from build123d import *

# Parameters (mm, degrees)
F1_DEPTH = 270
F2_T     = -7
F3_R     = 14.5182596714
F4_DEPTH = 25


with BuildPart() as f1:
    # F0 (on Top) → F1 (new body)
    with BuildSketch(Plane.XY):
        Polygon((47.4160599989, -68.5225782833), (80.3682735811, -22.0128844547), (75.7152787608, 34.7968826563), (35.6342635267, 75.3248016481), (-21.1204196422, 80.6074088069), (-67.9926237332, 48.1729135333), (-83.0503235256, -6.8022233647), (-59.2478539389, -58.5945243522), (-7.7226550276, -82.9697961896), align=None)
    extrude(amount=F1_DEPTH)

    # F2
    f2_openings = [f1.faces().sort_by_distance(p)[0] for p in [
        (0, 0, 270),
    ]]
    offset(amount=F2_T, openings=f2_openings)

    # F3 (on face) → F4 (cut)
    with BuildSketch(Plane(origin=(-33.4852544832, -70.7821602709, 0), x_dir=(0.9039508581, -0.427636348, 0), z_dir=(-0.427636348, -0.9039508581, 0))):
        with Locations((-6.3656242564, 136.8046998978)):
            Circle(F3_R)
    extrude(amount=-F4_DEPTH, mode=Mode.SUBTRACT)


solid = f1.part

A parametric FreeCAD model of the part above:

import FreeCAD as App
import Part
import Sketcher

V = App.Vector
Q = App.Units.Quantity


def faces_at(feature, points):
    """Names of the faces that lie closest to the given points."""
    faces = feature.Shape.Faces
    near = lambda p: min(range(len(faces)), key=lambda i: faces[i].distToShape(Part.Vertex(*p))[0])
    return sorted({f"Face{near(p) + 1}" for p in points})

doc = App.newDocument("Part")
params = doc.addObject("Spreadsheet::Sheet", "Params")
for row, (alias, value) in enumerate([
    ("sketch1_length", "57 mm"),
    ("pad1_length", "270 mm"),
    ("thickness_wall", "7 mm"),
    ("pocket1_length", "25 mm"),
], start=1):
    params.set(f"A{row}", alias)
    params.set(f"B{row}", "=" + value)
    params.setAlias(f"B{row}", alias)

body = doc.addObject("PartDesign::Body", "Body")

# Sketch on XY plane
sketch1 = doc.addObject("Sketcher::SketchObject", "Sketch")
body.addObject(sketch1)
sketch1.AttachmentSupport = (doc.XY_Plane, [""])
sketch1.MapMode = "FlatFace"
sketch1.addGeometry([
    Part.LineSegment(V(47.41606, -68.522578, 0), V(80.368274, -22.012884, 0)),  # 0
    Part.LineSegment(V(80.368274, -22.012884, 0), V(75.715279, 34.796883, 0)),  # 1
    Part.LineSegment(V(75.715279, 34.796883, 0), V(35.634264, 75.324802, 0)),  # 2
    Part.LineSegment(V(35.634264, 75.324802, 0), V(-21.12042, 80.607409, 0)),  # 3
    Part.LineSegment(V(-21.12042, 80.607409, 0), V(-67.992624, 48.172914, 0)),  # 4
    Part.LineSegment(V(-67.992624, 48.172914, 0), V(-83.050324, -6.802223, 0)),  # 5
    Part.LineSegment(V(-83.050324, -6.802223, 0), V(-59.247854, -58.594524, 0)),  # 6
    Part.LineSegment(V(-59.247854, -58.594524, 0), V(-7.722655, -82.969796, 0)),  # 7
    Part.LineSegment(V(-7.722655, -82.969796, 0), V(47.41606, -68.522578, 0)),  # 8
], False)
sketch1.addConstraint([
    Sketcher.Constraint("Coincident", 0, 2, 1, 1),
    Sketcher.Constraint("Coincident", 1, 2, 2, 1),
    Sketcher.Constraint("Coincident", 2, 2, 3, 1),
    Sketcher.Constraint("Coincident", 3, 2, 4, 1),
    Sketcher.Constraint("Coincident", 4, 2, 5, 1),
    Sketcher.Constraint("Coincident", 5, 2, 6, 1),
    Sketcher.Constraint("Coincident", 6, 2, 7, 1),
    Sketcher.Constraint("Coincident", 7, 2, 8, 1),
    Sketcher.Constraint("Coincident", 8, 2, 0, 1),
    Sketcher.Constraint("Equal", 0, 1),
    Sketcher.Constraint("Equal", 1, 2),
    Sketcher.Constraint("Equal", 2, 3),
    Sketcher.Constraint("Equal", 3, 4),
    Sketcher.Constraint("Equal", 4, 5),
    Sketcher.Constraint("Equal", 5, 6),
    Sketcher.Constraint("Equal", 6, 7),
    Sketcher.Constraint("Equal", 7, 8),
    Sketcher.Constraint("Distance", 0, Q("57 mm")),
    Sketcher.Constraint("DistanceY", -1, 1, 2, 2, Q("75.324802 mm")),
    Sketcher.Constraint("DistanceX", 3, 2, 1, 2, Q("96.835698 mm")),
    Sketcher.Constraint("DistanceX", 5, 2, 4, 2, Q("15.0577 mm")),
    Sketcher.Constraint("DistanceY", 6, 2, 5, 2, Q("51.792301 mm")),
    Sketcher.Constraint("DistanceX", 6, 2, 7, 2, Q("51.525199 mm")),
    Sketcher.Constraint("DistanceX", -1, 1, 1, 2, Q("75.715279 mm")),
    Sketcher.Constraint("DistanceY", -1, 1, 3, 2, Q("80.607409 mm")),
    Sketcher.Constraint("DistanceX", -1, 1, 8, 2, Q("47.41606 mm")),
    Sketcher.Constraint("DistanceY", 8, 2, -1, 1, Q("68.522578 mm")),
])
sketch1.setExpression("Constraints[17]", "Params.sketch1_length")
pad1 = doc.addObject("PartDesign::Pad", "Pad")
body.addObject(pad1)
pad1.Profile = sketch1
pad1.setExpression("Length", "Params.pad1_length")
doc.recompute()

thickness = doc.addObject("PartDesign::Thickness", "Thickness")
body.addObject(thickness)
thickness.Base = (pad1, faces_at(pad1, [(-1.341, -1.181, 270)]))
thickness.setExpression("Value", "Params.thickness_wall")
thickness.Reversed = True
thickness.Join = "Arc"

# Sketch on an angled plane
sketch2 = doc.addObject("Sketcher::SketchObject", "Sketch001")
body.addObject(sketch2)
sketch2.Placement = App.Placement(V(-33.485254, -70.78216, 0), App.Rotation(V(0.903950858, -0.427636348, 0), V(0, 0, 1), V(-0.427636348, -0.903950858, 0), "ZXY"))
sketch2.addGeometry(Part.Circle(V(-6.365624, 136.8047, 0), V(0, 0, 1), 14.51826), False)
sketch2.addConstraint([
    Sketcher.Constraint("Diameter", 0, Q("29.036519 mm")),
    Sketcher.Constraint("DistanceY", -1, 1, 0, 3, Q("136.8047 mm")),
    Sketcher.Constraint("DistanceX", 0, 3, -1, 1, Q("6.365624 mm")),
])
pocket1 = doc.addObject("PartDesign::Pocket", "Pocket")
body.addObject(pocket1)
pocket1.Profile = sketch2
pocket1.setExpression("Length", "Params.pocket1_length")

doc.recompute()
